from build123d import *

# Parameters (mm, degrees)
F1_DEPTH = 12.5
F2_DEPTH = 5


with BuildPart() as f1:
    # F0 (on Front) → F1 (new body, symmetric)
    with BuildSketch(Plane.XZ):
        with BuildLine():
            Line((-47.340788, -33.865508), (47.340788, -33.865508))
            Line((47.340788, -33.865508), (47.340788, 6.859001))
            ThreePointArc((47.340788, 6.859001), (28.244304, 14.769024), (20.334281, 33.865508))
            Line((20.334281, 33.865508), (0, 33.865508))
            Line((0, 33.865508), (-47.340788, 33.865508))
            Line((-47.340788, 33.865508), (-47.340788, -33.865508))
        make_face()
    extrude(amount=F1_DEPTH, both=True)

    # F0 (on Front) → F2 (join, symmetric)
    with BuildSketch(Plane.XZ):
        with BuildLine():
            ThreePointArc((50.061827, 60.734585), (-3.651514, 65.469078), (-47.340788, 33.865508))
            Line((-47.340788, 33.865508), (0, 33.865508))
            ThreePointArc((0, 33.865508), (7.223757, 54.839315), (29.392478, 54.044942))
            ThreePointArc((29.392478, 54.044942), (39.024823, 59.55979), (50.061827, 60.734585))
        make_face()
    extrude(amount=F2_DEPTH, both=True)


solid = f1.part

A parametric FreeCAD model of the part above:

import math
import FreeCAD as App
import Part
import Sketcher

doc = App.newDocument("Part")
body = doc.addObject("PartDesign::Body", "Body")

# Sketch on XZ plane
sketch1 = doc.addObject("Sketcher::SketchObject", "Sketch")
body.addObject(sketch1)
sketch1.AttachmentSupport = (doc.XZ_Plane, [""])
sketch1.MapMode = "FlatFace"
sketch1.addGeometry([
    Part.LineSegment(App.Vector(-47, -34, 0), App.Vector(47, -34, 0)),  # 0
    Part.LineSegment(App.Vector(47, -34, 0), App.Vector(47, 7, 0)),  # 1
    Part.ArcOfCircle(Part.Circle(App.Vector(47, 34, 0), App.Vector(0, 0, 1), 27), math.radians(-180), math.radians(-90)),  # 2
    Part.LineSegment(App.Vector(20, 34, 0), App.Vector(-47, 34, 0)),  # 3
    Part.LineSegment(App.Vector(-47, 34, 0), App.Vector(-47, -34, 0)),  # 4
], False)
sketch1.addConstraint([
    Sketcher.Constraint("Coincident", 0, 2, 1, 1),
    Sketcher.Constraint("Coincident", 1, 2, 2, 2),
    Sketcher.Constraint("Coincident", 2, 1, 3, 1),
    Sketcher.Constraint("Coincident", 3, 2, 4, 1),
    Sketcher.Constraint("Coincident", 4, 2, 0, 1),
    Sketcher.Constraint("Horizontal", 0),
    Sketcher.Constraint("Vertical", 1),
    Sketcher.Constraint("Horizontal", 3),
    Sketcher.Constraint("Vertical", 4),
    Sketcher.Constraint("Symmetric", 0, 2, 3, 2, -1, 1),
    Sketcher.Constraint("Vertical", 2, 3, 0, 2),
    Sketcher.Constraint("DistanceY", -1, 1, 1, 2, 6.859001),
    Sketcher.Constraint("Radius", 2, 27.006508),
    Sketcher.Constraint("DistanceX", 3, 2, 3, 1, 67.675069),
    Sketcher.Constraint("DistanceY", 1, 1, 1, 2, 40.724509),
])
pad1 = doc.addObject("PartDesign::Pad", "Pad")
body.addObject(pad1)
pad1.Profile = sketch1
pad1.Length = 25
pad1.Midplane = True

# Sketch on XZ plane
sketch2 = doc.addObject("Sketcher::SketchObject", "Sketch001")
body.addObject(sketch2)
sketch2.AttachmentSupport = (doc.XZ_Plane, [""])
sketch2.MapMode = "FlatFace"
sketch2.addGeometry([
    Part.ArcOfCircle(Part.Circle(App.Vector(17, -9, 0), App.Vector(0, 0, 1), 77), math.radians(65), math.radians(146)),
    Part.LineSegment(App.Vector(-47, 34, 0), App.Vector(0, 34, 0)),
    Part.ArcOfCircle(Part.Circle(App.Vector(18, 39, 0), App.Vector(0, 0, 1), 19), math.radians(51), math.radians(198)),
    Part.ArcOfCircle(Part.Circle(App.Vector(47, 34, 0), App.Vector(0, 0, 1), 27), math.radians(84), math.radians(132)),
], False)
sketch2.addConstraint([
    Sketcher.Constraint("Coincident", 0, 2, 1, 1),
    Sketcher.Constraint("Coincident", 1, 2, 2, 2),
    Sketcher.Constraint("Coincident", 2, 1, 3, 2),
    Sketcher.Constraint("Coincident", 3, 1, 0, 1),
    Sketcher.Constraint("Horizontal", 1),
    Sketcher.Constraint("PointOnObject", 1, 2, -2),
    Sketcher.Constraint("Radius", 3, 27.0065),
    Sketcher.Constraint("Radius", 0, 77.13262),
    Sketcher.Constraint("Radius", 2, 18.636233),
    Sketcher.Constraint("DistanceX", 1, 1, 1, 2, 47.340788),
    Sketcher.Constraint("DistanceY", -1, 1, 0, 2, 33.865508),
    Sketcher.Constraint("DistanceX", -1, 1, 2, 1, 29.392478),
    Sketcher.Constraint("DistanceY", 0, 3, 2, 3, 48.361791),
    Sketcher.Constraint("DistanceX", 2, 3, 3, 3, 29.568969),
    Sketcher.Constraint("DistanceY", 3, 3, 2, 3, 5.609959),
])
pad2 = doc.addObject("PartDesign::Pad", "Pad001")
body.addObject(pad2)
pad2.Profile = sketch2
pad2.Length = 10
pad2.Midplane = True

doc.recompute()
